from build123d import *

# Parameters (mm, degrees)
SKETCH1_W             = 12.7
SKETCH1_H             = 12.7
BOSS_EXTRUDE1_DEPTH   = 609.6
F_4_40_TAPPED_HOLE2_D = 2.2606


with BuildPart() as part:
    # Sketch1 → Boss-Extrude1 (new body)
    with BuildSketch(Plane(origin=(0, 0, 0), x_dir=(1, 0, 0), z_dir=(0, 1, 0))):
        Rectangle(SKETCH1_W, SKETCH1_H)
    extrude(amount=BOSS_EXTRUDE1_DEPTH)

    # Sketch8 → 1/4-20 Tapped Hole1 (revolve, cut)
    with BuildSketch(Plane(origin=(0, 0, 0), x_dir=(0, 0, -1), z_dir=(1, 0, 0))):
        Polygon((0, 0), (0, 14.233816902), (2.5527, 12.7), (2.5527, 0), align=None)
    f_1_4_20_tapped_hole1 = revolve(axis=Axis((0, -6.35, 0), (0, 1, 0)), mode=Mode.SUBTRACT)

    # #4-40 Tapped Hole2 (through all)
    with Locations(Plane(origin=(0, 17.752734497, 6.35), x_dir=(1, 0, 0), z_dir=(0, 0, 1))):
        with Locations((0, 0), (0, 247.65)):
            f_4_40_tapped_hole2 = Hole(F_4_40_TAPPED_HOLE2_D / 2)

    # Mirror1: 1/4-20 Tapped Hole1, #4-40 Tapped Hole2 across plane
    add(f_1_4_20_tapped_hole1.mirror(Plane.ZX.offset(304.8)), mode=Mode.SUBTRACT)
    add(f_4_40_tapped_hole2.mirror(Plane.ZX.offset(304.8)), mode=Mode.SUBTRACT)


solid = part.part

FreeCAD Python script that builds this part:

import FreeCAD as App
import Part
import Sketcher
Q = App.Units.Quantity


def add_polygon(sketch, points):
    """Adds a closed chain of lines whose ends are joined by coincident constraints."""
    first, n = sketch.GeometryCount, len(points)
    for a, b in zip(points, points[1:] + points[:1]):
        sketch.addGeometry(Part.LineSegment(App.Vector(*a, 0), App.Vector(*b, 0)), False)
    for i in range(n):
        sketch.addConstraint(Sketcher.Constraint("Coincident", first + i, 2, first + (i + 1) % n, 1))

doc = App.newDocument("Part")
body = doc.addObject("PartDesign::Body", "Body")

# Sketch on XZ plane
sketch1 = body.newObject("Sketcher::SketchObject", "Sketch")
sketch1.AttachmentSupport = (doc.getObject("XZ_Plane"), [""])
sketch1.MapMode = "FlatFace"
add_polygon(sketch1, [(-6.35, -6.35), (-6.35, 6.35), (6.35, 6.35), (6.35, -6.35)])  # lines 0-3
sketch1.addConstraint([
    Sketcher.Constraint("Vertical", 0),
    Sketcher.Constraint("Horizontal", 1),
    Sketcher.Constraint("Vertical", 2),
    Sketcher.Constraint("Horizontal", 3),
    Sketcher.Constraint("Symmetric", 0, 2, 2, 2, -1, 1),
    Sketcher.Constraint("Equal", 3, 0),
    Sketcher.Constraint("DistanceX", 1, 1, 1, 2, Q("0.5 in")),
])
pad1 = body.newObject("PartDesign::Pad", "Pad")
pad1.Profile = sketch1
pad1.Length = Q("24 in")
pad1.Reversed = True

# Sketch on YZ plane
sketch2 = body.newObject("Sketcher::SketchObject", "Sketch001")
sketch2.AttachmentSupport = (doc.getObject("YZ_Plane"), [""])
sketch2.MapMode = "FlatFace"
add_polygon(sketch2, [(14.233817, 0), (0, 0), (0, -2.5527), (12.7, -2.5527)])  # lines 0-3
sketch2.addConstraint([
    Sketcher.Constraint("Horizontal", 0),
    Sketcher.Constraint("Vertical", 1),
    Sketcher.Constraint("Horizontal", 2),
    Sketcher.Constraint("Coincident", 0, 2, -1, 1),
    Sketcher.Constraint("DistanceX", 2, 1, 2, 2, Q("0.5 in")),
    Sketcher.Constraint("Angle", 3, Q("59 deg")),
    Sketcher.Constraint("DistanceY", 1, 2, 1, 1, Q("0.1005 in")),
])
groove = body.newObject("PartDesign::Groove", "Groove")
groove.Profile = sketch2
groove.ReferenceAxis = (sketch2, ["H_Axis"])
groove.Angle = 360

# Sketch on XY plane
sketch3 = body.newObject("Sketcher::SketchObject", "Sketch002")
sketch3.AttachmentSupport = (doc.getObject("XY_Plane"), [""])
sketch3.MapMode = "FlatFace"
sketch3.AttachmentOffset = App.Placement(App.Vector(0, 0, 0.25 * 25.4), App.Rotation())
sketch3.addGeometry([
    Part.Circle(App.Vector(0, 17.752734, 0), App.Vector(0, 0, 1), 1.1303),
    Part.Circle(App.Vector(0, 265.402734, 0), App.Vector(0, 0, 1), 1.1303),
], False)
sketch3.addConstraint([
    Sketcher.Constraint("Equal", 0, 1),
    Sketcher.Constraint("PointOnObject", 0, 3, -2),
    Sketcher.Constraint("PointOnObject", 1, 3, -2),
    Sketcher.Constraint("Diameter", 0, Q("0.089 in")),
    Sketcher.Constraint("DistanceY", 0, 3, 1, 3, Q("9.75 in")),
    Sketcher.Constraint("DistanceY", -1, 1, 0, 3, 17.752734),
])
doc.recompute()
hole = body.newObject("PartDesign::Hole", "Hole")
hole.Profile = sketch3
hole.ThreadType = "None"
hole.Diameter = Q("0.089 in")
hole.DepthType = "ThroughAll"
doc.recompute()

datumplane = body.newObject("PartDesign::Plane", "DatumPlane")
datumplane.AttachmentSupport = (doc.getObject("XZ_Plane"), [""])
datumplane.MapMode = "FlatFace"
datumplane.AttachmentOffset = App.Placement(App.Vector(0, 0, -12 * 25.4), App.Rotation())
mirrored = body.newObject("PartDesign::Mirrored", "Mirrored")
mirrored.Originals = [groove, hole]
mirrored.MirrorPlane = (datumplane, [""])
body.Tip = mirrored

doc.recompute()
